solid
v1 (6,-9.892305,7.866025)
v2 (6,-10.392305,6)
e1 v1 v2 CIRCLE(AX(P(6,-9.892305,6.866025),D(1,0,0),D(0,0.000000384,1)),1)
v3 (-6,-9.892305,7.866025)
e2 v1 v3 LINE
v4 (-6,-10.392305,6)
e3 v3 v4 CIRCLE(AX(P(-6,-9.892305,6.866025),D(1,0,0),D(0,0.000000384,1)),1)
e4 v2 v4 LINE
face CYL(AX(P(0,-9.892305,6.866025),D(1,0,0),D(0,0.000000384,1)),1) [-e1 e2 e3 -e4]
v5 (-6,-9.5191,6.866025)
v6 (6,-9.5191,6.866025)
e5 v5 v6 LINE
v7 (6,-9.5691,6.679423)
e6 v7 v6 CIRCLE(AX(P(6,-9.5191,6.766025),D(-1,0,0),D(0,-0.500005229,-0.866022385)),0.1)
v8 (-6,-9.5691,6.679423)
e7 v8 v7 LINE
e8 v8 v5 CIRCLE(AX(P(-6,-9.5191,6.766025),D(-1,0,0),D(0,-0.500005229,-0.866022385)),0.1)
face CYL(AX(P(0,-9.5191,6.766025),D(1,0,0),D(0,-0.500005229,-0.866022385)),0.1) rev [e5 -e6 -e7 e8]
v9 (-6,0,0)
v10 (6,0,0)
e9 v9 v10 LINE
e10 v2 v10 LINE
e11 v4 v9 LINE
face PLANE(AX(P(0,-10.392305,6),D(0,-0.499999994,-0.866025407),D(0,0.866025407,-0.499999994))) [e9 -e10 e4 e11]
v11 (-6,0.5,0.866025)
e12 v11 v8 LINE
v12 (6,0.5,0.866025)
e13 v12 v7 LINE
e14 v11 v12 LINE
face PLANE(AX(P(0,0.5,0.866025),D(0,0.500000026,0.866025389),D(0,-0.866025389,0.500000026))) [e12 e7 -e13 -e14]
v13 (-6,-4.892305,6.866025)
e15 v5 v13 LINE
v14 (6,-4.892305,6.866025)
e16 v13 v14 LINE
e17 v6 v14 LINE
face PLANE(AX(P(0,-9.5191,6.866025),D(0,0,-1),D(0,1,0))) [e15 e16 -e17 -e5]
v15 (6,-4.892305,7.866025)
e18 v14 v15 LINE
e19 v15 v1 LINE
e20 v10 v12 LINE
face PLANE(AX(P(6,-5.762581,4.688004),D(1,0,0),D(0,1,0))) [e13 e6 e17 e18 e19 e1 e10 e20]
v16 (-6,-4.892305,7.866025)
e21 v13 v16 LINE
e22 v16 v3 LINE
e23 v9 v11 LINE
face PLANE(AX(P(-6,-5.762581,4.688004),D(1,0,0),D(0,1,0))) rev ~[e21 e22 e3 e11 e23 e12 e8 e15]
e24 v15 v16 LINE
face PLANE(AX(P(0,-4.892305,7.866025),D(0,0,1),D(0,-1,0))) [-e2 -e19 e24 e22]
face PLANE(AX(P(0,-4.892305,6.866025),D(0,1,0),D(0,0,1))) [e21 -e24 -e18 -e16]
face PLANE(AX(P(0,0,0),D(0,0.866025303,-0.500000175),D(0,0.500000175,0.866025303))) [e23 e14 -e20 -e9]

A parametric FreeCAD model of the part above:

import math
import FreeCAD as App
import Part
import Sketcher
from FreeCAD import Vector
Q = App.Units.Quantity

doc = App.newDocument("Part")
body = doc.addObject("PartDesign::Body", "Body")

sketch1 = body.newObject("Sketcher::SketchObject", "Sketch")
sketch1.AttachmentSupport = (doc.getObject("YZ_Plane"), [""])
sketch1.MapMode = "FlatFace"
sketch1.addGeometry([
    Part.LineSegment(Vector(-10.39, 6, 0), Vector(0, 0, 0)),
    Part.LineSegment(Vector(0, 0, 0), Vector(0.5, 0.87, 0)),
    Part.LineSegment(Vector(0.5, 0.87, 0), Vector(-9.57, 6.68, 0)),
    Part.ArcOfCircle(Part.Circle(Vector(-9.52, 6.77, 0), Vector(0, 0, 1), 0.1), math.radians(90), math.radians(240)),
    Part.LineSegment(Vector(-9.52, 6.87, 0), Vector(-4.89, 6.87, 0)),
    Part.LineSegment(Vector(-4.89, 6.87, 0), Vector(-4.89, 7.87, 0)),
    Part.LineSegment(Vector(-4.89, 7.87, 0), Vector(-9.89, 7.87, 0)),
    Part.ArcOfCircle(Part.Circle(Vector(-9.89, 6.87, 0), Vector(0, 0, 1), 1), math.radians(90), math.radians(240)),
], False)
sketch1.addConstraint([
    Sketcher.Constraint("Coincident", 0, 2, 1, 1),
    Sketcher.Constraint("Coincident", 1, 2, 2, 1),
    Sketcher.Constraint("Coincident", 2, 2, 3, 2),
    Sketcher.Constraint("Coincident", 3, 1, 4, 1),
    Sketcher.Constraint("Coincident", 4, 2, 5, 1),
    Sketcher.Constraint("Coincident", 5, 2, 6, 1),
    Sketcher.Constraint("Tangent", 6, 2, 7, 1),
    Sketcher.Constraint("Tangent", 7, 2, 0, 1),
    Sketcher.Constraint("Horizontal", 4),
    Sketcher.Constraint("Vertical", 5),
    Sketcher.Constraint("Horizontal", 6),
    Sketcher.Constraint("Coincident", 0, 2, -1, 1),
    Sketcher.Constraint("Perpendicular", 0, 1),
    Sketcher.Constraint("Perpendicular", 1, 2),
    Sketcher.Constraint("Horizontal", 7, 3, 3, 1),
    Sketcher.Constraint("Radius", 7, Q("1 mm")),
    Sketcher.Constraint("Radius", 3, Q("0.1 mm")),
    Sketcher.Constraint("DistanceX", 6, 2, 6, 1, Q("5 mm")),
    Sketcher.Constraint("Angle", 0, Q("-30 deg")),
    Sketcher.Constraint("Distance", 0, Q("12 mm")),
    Sketcher.Constraint("Distance", 1, Q("1 mm")),
    Sketcher.Constraint("DistanceX", 2, 2, 3, 3, Q("0.05 mm")),
    Sketcher.Constraint("DistanceX", 2, 2, 3, 1, Q("0.05 mm")),
])
pad1 = body.newObject("PartDesign::Pad", "Pad")
pad1.Profile = sketch1
pad1.Length = 12
pad1.Midplane = True

doc.recompute()
